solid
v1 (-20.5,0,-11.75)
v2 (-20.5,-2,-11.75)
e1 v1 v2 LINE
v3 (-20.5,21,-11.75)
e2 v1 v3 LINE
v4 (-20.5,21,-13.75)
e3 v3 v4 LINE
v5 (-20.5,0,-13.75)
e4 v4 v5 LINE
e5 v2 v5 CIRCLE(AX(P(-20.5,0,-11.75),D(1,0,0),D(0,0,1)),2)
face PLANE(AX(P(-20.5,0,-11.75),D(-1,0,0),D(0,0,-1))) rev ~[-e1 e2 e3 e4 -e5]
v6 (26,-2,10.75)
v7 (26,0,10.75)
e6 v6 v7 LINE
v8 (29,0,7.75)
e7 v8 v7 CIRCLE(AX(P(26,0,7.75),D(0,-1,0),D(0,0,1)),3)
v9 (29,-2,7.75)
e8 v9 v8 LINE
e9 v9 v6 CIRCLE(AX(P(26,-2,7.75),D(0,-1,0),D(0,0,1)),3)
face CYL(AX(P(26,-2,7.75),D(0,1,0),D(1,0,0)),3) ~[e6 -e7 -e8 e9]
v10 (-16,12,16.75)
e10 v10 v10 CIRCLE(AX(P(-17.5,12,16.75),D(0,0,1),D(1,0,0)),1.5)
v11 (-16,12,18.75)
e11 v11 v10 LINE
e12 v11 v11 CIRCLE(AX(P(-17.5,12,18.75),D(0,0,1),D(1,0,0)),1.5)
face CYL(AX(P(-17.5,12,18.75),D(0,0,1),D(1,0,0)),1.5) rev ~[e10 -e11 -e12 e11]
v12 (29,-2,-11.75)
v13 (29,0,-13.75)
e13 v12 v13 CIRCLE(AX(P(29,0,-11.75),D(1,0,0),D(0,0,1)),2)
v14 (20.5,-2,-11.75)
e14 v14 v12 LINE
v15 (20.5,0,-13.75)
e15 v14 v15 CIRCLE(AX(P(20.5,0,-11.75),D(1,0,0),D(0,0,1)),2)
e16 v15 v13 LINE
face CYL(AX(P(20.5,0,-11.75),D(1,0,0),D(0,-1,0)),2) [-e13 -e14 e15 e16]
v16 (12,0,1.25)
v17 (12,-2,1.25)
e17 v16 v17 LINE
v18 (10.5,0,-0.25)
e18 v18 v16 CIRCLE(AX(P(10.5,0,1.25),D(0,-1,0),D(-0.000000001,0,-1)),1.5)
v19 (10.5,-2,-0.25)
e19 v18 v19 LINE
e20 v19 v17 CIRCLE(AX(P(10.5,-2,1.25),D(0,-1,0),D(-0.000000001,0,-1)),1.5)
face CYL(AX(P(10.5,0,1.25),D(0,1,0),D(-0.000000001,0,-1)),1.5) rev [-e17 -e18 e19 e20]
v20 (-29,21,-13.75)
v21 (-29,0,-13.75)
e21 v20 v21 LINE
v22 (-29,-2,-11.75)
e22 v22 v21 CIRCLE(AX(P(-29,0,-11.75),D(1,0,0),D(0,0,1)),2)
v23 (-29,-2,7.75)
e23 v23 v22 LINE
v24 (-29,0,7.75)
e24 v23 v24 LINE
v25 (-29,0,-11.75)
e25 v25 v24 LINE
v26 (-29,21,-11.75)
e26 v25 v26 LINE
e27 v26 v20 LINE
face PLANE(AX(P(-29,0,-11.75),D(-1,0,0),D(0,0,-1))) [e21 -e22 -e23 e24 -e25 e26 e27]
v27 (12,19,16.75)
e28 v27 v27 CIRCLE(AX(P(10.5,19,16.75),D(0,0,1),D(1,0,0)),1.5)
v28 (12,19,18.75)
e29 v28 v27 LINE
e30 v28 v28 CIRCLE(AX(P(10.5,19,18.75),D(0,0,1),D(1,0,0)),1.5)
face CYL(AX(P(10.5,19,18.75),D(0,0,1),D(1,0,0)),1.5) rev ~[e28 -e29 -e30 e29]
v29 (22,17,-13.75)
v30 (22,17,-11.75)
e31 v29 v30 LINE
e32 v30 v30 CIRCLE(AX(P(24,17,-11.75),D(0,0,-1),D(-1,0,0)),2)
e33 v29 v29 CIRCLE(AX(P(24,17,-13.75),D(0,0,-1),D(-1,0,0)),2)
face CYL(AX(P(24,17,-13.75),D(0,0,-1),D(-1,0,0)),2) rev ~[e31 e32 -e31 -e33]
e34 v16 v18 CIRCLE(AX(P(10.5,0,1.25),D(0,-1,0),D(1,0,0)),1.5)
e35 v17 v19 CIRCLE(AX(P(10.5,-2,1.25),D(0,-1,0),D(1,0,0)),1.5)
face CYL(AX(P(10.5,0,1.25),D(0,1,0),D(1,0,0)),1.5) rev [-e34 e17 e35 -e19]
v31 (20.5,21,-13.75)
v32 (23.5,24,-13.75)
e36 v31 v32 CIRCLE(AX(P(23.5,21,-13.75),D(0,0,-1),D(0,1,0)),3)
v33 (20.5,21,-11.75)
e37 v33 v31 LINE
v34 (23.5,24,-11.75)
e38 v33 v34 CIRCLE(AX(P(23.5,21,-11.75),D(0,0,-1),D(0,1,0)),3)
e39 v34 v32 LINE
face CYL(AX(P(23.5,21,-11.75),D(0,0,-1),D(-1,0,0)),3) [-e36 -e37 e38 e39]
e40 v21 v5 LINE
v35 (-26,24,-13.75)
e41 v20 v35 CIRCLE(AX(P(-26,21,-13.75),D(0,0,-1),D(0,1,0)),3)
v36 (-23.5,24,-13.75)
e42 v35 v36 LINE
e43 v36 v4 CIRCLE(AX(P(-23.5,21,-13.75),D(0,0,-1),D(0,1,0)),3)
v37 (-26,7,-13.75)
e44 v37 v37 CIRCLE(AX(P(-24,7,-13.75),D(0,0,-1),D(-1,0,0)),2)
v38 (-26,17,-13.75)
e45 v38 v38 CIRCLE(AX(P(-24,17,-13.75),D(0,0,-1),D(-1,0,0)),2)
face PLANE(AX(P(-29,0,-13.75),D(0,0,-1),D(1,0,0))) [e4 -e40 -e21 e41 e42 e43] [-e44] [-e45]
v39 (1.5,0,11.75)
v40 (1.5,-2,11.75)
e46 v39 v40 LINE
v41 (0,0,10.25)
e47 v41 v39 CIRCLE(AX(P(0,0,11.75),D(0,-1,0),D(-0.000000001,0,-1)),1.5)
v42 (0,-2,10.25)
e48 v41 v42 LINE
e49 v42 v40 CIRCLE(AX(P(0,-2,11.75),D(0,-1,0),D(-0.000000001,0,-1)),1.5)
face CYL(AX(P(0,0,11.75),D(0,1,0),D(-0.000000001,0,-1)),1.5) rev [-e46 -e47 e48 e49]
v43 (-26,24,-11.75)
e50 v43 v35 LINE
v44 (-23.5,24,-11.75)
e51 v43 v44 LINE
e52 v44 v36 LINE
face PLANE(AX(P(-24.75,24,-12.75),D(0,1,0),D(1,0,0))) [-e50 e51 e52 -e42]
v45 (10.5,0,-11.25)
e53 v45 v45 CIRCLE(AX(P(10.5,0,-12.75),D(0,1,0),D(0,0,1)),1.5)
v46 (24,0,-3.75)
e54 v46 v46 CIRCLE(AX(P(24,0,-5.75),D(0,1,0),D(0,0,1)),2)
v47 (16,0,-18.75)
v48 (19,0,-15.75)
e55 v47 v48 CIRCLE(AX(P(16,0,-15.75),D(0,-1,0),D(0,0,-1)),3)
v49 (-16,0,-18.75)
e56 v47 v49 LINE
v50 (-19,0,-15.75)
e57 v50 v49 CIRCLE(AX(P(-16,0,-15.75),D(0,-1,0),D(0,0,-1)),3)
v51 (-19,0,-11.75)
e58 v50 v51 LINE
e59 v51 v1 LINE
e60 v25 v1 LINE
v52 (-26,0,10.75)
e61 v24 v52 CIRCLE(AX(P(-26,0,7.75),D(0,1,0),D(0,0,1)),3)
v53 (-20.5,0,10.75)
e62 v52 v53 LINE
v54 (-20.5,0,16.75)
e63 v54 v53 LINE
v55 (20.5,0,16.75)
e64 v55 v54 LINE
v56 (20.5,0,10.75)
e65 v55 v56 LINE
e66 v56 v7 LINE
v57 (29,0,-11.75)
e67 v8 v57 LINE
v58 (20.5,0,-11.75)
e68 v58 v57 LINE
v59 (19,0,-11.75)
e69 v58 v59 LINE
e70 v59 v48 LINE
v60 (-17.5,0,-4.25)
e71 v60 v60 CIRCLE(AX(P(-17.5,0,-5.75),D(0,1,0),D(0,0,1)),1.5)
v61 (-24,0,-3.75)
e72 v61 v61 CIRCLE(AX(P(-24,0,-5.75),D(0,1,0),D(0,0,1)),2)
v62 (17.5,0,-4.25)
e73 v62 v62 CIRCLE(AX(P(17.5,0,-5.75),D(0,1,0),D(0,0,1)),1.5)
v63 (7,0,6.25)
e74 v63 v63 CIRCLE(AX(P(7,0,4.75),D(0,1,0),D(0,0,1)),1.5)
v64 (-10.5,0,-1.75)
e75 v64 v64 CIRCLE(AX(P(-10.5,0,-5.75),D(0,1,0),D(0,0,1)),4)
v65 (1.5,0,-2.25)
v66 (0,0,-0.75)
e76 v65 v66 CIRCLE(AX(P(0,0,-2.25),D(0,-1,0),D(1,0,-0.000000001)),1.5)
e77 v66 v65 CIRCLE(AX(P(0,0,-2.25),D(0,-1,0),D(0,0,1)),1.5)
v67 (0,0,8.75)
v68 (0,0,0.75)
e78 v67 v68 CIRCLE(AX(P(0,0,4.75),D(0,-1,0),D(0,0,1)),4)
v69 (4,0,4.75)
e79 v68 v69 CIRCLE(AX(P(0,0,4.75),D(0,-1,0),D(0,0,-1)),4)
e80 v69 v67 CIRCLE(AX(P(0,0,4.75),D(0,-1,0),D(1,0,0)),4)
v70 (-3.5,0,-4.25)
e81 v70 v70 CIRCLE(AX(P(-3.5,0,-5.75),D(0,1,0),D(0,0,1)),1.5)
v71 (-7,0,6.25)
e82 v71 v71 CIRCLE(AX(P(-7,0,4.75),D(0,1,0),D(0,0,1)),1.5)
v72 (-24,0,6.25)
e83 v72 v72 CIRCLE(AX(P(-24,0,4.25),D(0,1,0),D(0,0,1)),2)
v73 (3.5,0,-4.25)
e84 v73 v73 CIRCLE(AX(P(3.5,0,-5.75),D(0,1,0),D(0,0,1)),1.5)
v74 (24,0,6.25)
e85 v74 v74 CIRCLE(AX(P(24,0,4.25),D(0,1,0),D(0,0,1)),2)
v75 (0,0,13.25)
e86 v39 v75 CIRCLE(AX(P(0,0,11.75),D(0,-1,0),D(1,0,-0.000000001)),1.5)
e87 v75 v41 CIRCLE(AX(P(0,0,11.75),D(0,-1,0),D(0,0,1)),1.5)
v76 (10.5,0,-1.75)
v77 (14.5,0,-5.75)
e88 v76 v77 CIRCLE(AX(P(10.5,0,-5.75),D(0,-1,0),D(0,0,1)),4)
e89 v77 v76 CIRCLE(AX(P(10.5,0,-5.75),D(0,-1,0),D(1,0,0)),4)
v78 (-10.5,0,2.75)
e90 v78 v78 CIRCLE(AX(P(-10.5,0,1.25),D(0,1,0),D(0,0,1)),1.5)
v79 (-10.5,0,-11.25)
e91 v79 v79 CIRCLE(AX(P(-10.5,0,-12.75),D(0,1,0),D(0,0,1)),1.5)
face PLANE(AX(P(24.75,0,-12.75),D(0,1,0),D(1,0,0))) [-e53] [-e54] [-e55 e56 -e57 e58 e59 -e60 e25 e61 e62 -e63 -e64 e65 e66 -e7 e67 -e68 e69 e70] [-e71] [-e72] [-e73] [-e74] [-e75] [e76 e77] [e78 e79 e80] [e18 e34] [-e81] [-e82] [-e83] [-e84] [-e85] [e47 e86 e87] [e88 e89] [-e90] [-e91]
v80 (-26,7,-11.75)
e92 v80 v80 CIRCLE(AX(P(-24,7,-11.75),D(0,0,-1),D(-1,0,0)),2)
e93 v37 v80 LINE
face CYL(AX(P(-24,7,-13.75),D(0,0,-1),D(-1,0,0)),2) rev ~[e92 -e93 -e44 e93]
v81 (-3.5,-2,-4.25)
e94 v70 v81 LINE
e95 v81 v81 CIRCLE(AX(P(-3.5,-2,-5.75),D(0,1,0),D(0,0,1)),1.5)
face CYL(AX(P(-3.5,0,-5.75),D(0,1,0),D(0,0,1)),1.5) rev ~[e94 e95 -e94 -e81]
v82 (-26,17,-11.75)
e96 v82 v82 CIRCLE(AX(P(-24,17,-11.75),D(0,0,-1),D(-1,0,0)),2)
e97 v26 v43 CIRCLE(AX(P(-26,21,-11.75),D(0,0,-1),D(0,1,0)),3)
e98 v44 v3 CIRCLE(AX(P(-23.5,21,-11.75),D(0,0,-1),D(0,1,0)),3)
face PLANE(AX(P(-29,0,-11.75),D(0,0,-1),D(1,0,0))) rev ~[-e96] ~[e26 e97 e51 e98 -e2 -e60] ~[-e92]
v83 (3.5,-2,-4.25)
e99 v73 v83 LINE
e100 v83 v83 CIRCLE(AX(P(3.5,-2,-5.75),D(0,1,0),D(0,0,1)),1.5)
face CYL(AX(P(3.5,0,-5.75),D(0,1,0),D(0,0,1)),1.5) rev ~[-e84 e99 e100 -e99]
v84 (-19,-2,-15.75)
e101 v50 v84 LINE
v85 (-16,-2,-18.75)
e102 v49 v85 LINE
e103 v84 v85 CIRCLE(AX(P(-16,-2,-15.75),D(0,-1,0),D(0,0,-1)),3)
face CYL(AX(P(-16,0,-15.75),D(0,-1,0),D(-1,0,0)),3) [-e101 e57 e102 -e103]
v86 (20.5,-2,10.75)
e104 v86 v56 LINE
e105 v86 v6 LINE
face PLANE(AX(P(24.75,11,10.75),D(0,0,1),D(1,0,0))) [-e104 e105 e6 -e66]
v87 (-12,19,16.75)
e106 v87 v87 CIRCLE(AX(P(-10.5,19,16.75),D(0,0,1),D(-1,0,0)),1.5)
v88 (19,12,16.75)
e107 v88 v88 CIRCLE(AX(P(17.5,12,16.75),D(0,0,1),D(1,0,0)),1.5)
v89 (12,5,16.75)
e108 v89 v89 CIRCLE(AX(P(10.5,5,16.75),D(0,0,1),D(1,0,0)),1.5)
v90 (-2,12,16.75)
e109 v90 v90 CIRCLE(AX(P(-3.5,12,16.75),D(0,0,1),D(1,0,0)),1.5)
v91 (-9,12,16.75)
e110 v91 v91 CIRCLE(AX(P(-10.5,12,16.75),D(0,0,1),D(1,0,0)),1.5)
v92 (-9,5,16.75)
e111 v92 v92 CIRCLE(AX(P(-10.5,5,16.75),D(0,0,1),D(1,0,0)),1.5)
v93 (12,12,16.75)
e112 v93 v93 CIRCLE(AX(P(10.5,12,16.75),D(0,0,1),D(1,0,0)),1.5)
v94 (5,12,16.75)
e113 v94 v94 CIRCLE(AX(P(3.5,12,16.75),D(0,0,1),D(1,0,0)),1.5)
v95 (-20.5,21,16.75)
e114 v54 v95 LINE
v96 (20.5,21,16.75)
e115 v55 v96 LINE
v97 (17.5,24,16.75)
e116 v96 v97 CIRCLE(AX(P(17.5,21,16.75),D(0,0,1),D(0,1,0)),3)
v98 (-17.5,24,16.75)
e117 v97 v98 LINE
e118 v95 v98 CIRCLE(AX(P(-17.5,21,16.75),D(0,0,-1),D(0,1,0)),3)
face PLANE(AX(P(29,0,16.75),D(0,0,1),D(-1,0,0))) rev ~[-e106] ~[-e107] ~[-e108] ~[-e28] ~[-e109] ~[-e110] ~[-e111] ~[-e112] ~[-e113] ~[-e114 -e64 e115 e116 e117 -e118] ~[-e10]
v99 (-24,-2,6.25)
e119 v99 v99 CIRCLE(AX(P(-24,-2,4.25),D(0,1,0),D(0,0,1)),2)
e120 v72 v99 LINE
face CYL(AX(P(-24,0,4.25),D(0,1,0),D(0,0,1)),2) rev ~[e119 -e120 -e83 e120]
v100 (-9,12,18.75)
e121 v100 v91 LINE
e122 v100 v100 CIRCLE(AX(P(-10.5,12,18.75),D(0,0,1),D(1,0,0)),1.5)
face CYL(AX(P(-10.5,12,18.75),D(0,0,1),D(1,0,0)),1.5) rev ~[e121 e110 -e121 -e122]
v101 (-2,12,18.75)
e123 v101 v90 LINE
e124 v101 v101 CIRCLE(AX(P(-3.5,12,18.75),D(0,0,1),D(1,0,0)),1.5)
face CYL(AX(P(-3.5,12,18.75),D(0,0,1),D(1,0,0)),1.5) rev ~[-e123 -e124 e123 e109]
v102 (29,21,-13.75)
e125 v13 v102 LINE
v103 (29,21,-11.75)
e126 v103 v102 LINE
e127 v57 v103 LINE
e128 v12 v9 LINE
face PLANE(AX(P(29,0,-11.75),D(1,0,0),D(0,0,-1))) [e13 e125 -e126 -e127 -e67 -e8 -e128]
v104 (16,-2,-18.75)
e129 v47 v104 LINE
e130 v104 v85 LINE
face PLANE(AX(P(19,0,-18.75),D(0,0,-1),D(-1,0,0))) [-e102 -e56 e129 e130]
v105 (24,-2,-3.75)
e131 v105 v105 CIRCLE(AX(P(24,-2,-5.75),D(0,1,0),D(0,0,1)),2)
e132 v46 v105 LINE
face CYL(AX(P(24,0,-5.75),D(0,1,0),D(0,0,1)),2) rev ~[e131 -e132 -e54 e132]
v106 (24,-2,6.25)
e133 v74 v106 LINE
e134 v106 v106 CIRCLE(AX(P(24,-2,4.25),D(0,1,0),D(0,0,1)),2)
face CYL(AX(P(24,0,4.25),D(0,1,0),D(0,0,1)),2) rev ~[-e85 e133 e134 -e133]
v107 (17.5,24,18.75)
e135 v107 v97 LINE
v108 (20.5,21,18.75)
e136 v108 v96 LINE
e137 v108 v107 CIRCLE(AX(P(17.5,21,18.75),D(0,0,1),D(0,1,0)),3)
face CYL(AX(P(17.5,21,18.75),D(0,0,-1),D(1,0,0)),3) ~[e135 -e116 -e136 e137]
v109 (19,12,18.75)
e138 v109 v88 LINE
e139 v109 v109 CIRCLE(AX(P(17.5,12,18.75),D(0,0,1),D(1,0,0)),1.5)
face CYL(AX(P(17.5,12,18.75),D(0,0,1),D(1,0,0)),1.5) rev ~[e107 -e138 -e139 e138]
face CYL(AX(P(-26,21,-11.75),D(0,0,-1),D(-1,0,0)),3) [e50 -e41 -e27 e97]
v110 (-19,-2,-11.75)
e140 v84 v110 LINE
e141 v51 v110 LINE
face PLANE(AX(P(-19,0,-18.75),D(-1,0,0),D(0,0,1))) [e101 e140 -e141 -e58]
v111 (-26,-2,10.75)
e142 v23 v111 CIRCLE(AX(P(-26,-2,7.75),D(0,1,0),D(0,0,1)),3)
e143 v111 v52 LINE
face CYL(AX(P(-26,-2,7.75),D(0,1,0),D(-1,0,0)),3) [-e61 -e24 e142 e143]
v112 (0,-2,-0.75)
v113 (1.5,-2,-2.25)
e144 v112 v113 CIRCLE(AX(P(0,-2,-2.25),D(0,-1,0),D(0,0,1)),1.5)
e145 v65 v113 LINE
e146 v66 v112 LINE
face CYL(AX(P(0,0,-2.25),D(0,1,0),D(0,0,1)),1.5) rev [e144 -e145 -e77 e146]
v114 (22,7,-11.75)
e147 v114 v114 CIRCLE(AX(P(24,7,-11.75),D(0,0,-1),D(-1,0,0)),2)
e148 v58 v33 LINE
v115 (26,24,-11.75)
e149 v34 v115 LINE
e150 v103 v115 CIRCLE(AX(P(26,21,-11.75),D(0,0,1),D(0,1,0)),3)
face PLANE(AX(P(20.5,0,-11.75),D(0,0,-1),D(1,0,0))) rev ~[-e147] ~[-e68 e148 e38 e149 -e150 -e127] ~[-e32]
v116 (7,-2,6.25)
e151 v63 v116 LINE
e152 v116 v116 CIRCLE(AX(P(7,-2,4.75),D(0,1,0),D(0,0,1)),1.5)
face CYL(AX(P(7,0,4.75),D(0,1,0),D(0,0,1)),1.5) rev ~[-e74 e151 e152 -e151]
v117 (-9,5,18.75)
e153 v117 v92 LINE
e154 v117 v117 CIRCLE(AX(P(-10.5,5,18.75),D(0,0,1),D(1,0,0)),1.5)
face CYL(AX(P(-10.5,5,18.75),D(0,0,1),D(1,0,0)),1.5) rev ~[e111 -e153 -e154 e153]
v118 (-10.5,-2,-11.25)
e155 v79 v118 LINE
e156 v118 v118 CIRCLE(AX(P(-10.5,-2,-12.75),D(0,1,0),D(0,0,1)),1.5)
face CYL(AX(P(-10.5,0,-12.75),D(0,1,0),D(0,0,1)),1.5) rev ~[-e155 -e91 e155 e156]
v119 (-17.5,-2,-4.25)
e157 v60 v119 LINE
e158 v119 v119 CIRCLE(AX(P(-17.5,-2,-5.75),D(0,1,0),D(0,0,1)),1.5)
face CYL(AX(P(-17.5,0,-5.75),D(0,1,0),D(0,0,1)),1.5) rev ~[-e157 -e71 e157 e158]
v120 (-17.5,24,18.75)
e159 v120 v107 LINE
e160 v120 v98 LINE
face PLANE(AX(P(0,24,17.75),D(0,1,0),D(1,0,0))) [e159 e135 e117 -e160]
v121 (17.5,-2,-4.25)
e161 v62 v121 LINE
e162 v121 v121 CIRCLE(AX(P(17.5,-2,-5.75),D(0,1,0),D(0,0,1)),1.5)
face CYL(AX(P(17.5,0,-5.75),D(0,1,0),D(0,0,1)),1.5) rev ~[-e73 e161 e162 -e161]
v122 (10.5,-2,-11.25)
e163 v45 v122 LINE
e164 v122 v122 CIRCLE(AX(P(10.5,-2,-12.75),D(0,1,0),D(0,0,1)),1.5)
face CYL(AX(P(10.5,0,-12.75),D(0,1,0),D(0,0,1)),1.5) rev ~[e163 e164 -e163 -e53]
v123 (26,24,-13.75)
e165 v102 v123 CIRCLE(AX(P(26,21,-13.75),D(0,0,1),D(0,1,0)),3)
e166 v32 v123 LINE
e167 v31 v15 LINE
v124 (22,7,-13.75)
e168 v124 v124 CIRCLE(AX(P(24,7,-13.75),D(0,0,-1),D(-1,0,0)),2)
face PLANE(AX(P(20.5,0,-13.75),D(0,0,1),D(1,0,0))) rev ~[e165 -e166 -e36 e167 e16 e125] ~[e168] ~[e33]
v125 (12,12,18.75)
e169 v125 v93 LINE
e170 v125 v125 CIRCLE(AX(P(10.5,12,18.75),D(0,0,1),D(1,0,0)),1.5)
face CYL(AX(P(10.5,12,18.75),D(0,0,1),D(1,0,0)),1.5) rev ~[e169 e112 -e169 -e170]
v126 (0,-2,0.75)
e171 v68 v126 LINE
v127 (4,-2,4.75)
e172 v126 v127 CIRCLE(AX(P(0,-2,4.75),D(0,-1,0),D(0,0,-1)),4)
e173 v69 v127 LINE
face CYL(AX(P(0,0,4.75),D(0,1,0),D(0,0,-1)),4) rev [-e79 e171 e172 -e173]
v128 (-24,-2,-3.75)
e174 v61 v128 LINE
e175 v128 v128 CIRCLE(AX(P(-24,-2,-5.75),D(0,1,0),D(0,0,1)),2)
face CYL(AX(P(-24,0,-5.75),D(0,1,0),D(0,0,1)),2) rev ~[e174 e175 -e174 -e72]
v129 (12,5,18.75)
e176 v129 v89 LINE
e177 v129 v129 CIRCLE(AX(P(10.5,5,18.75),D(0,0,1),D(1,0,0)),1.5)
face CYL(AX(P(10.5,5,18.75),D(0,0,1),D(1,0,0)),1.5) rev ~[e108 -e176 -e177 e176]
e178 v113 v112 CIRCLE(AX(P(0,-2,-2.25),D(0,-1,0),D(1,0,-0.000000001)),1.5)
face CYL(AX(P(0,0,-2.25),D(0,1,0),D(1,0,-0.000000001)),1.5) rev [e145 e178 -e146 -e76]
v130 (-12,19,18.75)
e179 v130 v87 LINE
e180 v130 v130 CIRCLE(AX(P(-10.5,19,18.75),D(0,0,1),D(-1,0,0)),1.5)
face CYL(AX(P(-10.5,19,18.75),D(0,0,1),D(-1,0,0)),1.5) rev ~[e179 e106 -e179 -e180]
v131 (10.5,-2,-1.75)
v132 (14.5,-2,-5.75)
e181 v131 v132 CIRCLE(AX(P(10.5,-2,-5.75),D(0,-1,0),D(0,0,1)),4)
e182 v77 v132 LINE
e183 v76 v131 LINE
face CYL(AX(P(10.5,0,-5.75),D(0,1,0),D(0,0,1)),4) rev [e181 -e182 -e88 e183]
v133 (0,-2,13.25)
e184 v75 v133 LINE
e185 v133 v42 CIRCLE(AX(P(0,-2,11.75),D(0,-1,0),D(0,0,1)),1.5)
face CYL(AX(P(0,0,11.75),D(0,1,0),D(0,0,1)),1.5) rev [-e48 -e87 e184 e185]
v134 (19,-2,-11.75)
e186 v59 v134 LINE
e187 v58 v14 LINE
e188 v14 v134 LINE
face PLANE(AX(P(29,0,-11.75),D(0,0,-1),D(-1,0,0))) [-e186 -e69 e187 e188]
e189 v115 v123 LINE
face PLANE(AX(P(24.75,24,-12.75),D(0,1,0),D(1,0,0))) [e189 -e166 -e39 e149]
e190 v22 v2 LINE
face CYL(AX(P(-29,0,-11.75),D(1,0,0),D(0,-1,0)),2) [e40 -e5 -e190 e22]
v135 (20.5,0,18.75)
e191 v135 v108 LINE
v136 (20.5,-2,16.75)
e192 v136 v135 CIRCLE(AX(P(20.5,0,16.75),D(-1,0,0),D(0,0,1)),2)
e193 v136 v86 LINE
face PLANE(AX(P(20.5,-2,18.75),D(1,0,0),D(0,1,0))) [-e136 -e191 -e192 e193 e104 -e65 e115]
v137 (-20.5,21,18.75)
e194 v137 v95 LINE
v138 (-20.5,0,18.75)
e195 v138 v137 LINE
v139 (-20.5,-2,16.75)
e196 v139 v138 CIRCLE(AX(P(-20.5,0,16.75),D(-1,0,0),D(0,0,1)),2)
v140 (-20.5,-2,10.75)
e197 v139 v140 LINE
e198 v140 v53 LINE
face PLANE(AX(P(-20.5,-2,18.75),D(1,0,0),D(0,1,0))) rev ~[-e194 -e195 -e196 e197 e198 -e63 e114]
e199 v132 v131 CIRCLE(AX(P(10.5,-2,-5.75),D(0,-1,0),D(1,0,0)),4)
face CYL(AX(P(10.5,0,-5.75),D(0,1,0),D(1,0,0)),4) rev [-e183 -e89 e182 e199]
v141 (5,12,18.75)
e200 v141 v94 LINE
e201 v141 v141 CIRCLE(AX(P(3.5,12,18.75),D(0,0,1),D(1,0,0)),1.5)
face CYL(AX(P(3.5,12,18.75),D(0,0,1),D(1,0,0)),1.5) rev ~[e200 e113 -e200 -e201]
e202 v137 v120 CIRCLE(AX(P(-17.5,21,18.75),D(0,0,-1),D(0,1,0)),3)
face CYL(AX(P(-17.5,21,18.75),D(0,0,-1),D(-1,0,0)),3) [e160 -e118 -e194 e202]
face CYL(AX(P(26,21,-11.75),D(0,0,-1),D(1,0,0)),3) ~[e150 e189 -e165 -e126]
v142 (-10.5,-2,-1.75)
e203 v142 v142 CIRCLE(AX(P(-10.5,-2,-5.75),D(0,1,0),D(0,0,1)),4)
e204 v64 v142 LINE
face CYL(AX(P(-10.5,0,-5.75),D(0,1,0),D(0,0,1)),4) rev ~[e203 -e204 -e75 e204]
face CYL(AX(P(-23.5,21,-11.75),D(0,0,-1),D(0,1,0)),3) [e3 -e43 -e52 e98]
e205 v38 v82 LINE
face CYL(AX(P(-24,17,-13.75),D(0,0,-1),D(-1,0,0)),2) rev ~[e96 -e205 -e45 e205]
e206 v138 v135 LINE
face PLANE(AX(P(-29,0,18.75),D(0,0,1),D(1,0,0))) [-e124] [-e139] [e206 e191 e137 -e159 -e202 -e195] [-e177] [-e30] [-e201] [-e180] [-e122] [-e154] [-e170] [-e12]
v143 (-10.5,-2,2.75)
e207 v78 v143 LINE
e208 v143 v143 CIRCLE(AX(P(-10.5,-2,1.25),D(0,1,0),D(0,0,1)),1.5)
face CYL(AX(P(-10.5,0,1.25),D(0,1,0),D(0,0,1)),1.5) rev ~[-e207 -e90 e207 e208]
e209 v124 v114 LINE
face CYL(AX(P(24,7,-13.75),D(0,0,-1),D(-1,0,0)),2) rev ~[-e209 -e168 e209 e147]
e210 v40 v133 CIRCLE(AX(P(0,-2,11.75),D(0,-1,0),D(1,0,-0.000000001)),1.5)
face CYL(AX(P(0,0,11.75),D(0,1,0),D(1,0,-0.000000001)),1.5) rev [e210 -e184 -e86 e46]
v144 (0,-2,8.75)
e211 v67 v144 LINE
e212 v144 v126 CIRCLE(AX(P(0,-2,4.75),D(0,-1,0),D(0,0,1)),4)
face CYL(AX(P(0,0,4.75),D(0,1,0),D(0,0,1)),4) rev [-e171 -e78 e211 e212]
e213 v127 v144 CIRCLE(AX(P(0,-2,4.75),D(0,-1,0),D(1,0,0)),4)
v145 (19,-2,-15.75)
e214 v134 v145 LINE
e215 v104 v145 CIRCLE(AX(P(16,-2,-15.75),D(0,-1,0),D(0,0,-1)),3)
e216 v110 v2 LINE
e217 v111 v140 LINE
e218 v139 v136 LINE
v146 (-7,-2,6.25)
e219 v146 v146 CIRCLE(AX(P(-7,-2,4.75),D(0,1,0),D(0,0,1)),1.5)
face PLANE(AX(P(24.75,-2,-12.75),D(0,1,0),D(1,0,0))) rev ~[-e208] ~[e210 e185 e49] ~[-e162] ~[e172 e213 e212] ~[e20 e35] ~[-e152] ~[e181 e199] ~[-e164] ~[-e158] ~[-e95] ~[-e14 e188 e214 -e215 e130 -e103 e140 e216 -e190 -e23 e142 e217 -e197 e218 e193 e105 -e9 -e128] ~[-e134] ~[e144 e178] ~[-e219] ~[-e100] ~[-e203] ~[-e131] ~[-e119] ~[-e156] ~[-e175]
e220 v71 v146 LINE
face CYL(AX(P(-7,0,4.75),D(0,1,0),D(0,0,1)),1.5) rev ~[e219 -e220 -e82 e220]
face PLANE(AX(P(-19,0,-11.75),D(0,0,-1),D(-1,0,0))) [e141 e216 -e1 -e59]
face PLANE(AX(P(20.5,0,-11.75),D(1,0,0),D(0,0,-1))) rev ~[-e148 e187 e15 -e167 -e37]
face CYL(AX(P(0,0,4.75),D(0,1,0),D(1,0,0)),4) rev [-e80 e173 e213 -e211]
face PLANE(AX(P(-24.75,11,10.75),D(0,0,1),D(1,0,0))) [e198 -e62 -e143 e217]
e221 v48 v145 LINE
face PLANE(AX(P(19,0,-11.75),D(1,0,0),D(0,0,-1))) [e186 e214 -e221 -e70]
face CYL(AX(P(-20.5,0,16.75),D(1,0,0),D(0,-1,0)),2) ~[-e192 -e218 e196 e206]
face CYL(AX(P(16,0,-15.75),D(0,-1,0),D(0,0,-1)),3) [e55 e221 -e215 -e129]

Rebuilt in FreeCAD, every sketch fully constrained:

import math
import FreeCAD as App
import Part
import Sketcher


def edges_at(feature, points):
    """Names of the edges that pass closest to the given points."""
    edges = feature.Shape.Edges
    near = lambda p: min(range(len(edges)), key=lambda i: edges[i].distToShape(Part.Vertex(*p))[0])
    return sorted({f"Edge{near(p) + 1}" for p in points})

doc = App.newDocument("Part")
body = doc.addObject("PartDesign::Body", "Body")

# Sketch on XZ plane
sketch1 = body.newObject("Sketcher::SketchObject", "Sketch")
sketch1.AttachmentSupport = (doc.getObject("XZ_Plane"), [""])
sketch1.MapMode = "FlatFace"
sketch1.addGeometry([
    Part.LineSegment(App.Vector(-29, 18.8, 0), App.Vector(29, 18.8, 0)),  # 0
    Part.LineSegment(App.Vector(29, 18.8, 0), App.Vector(29, -13.8, 0)),  # 1
    Part.LineSegment(App.Vector(29, -13.8, 0), App.Vector(20.5, -13.8, 0)),  # 2
    Part.LineSegment(App.Vector(20.5, -13.8, 0), App.Vector(20.5, -11.8, 0)),  # 3
    Part.LineSegment(App.Vector(20.5, -11.8, 0), App.Vector(19, -11.8, 0)),  # 4
    Part.LineSegment(App.Vector(19, -11.8, 0), App.Vector(19, -18.8, 0)),  # 5
    Part.LineSegment(App.Vector(19, -18.8, 0), App.Vector(-19, -18.8, 0)),  # 6
    Part.LineSegment(App.Vector(-19, -18.8, 0), App.Vector(-19, -11.8, 0)),  # 7
    Part.LineSegment(App.Vector(-19, -11.8, 0), App.Vector(-20.5, -11.8, 0)),  # 8
    Part.LineSegment(App.Vector(-20.5, -11.8, 0), App.Vector(-20.5, -13.8, 0)),  # 9
    Part.LineSegment(App.Vector(-20.5, -13.8, 0), App.Vector(-29, -13.8, 0)),  # 10
    Part.LineSegment(App.Vector(-29, -13.8, 0), App.Vector(-29, 18.8, 0)),  # 11
    Part.Circle(App.Vector(10.5, -12.8, 0), App.Vector(0, 0, 1), 1.5),  # 12
    Part.Circle(App.Vector(-24, 4.2, 0), App.Vector(0, 0, 1), 2),  # 13
    Part.Circle(App.Vector(-7, 4.8, 0), App.Vector(0, 0, 1), 1.5),  # 14
    Part.Circle(App.Vector(-10.5, 1.2, 0), App.Vector(0, 0, 1), 1.5),  # 15
    Part.ArcOfCircle(Part.Circle(App.Vector(0, 11.7, 0), App.Vector(0, 0, 1), 1.5), math.radians(-90), math.radians(0)),  # 16
    Part.ArcOfCircle(Part.Circle(App.Vector(0, 11.8, 0), App.Vector(0, 0, 1), 1.5), math.radians(0), math.radians(90)),  # 17
    Part.ArcOfCircle(Part.Circle(App.Vector(0, 11.8, 0), App.Vector(0, 0, 1), 1.5), math.radians(90), math.radians(270)),  # 18
    Part.ArcOfCircle(Part.Circle(App.Vector(0, 4.7, 0), App.Vector(0, 0, 1), 4), math.radians(-90), math.radians(0)),  # 19
    Part.ArcOfCircle(Part.Circle(App.Vector(0, 4.8, 0), App.Vector(0, 0, 1), 4), math.radians(0), math.radians(90)),  # 20
    Part.ArcOfCircle(Part.Circle(App.Vector(0, 4.8, 0), App.Vector(0, 0, 1), 4), math.radians(90), math.radians(270)),  # 21
    Part.Circle(App.Vector(7, 4.8, 0), App.Vector(0, 0, 1), 1.5),  # 22
    Part.ArcOfCircle(Part.Circle(App.Vector(10.5, 1.2, 0), App.Vector(0, 0, 1), 1.5), math.radians(-90), math.radians(0)),  # 23
    Part.ArcOfCircle(Part.Circle(App.Vector(10.5, 1.2, 0), App.Vector(0, 0, 1), 1.5), math.radians(0), math.radians(270)),  # 24
    Part.Circle(App.Vector(24, 4.2, 0), App.Vector(0, 0, 1), 2),  # 25
    Part.Circle(App.Vector(-24, -5.8, 0), App.Vector(0, 0, 1), 2),  # 26
    Part.Circle(App.Vector(-17.5, -5.8, 0), App.Vector(0, 0, 1), 1.5),  # 27
    Part.ArcOfCircle(Part.Circle(App.Vector(0, -2.2, 0), App.Vector(0, 0, 1), 1.5), math.radians(90), math.radians(360)),  # 28
    Part.ArcOfCircle(Part.Circle(App.Vector(0, -2.2, 0), App.Vector(0, 0, 1), 1.5), math.radians(0), math.radians(90)),  # 29
    Part.Circle(App.Vector(-10.5, -5.8, 0), App.Vector(0, 0, 1), 4),  # 30
    Part.Circle(App.Vector(-3.5, -5.8, 0), App.Vector(0, 0, 1), 1.5),  # 31
    Part.Circle(App.Vector(-10.5, -12.8, 0), App.Vector(0, 0, 1), 1.5),  # 32
    Part.Circle(App.Vector(3.5, -5.8, 0), App.Vector(0, 0, 1), 1.5),  # 33
    Part.ArcOfCircle(Part.Circle(App.Vector(10.5, -5.8, 0), App.Vector(0, 0, 1), 4), math.radians(90), math.radians(360)),  # 34
    Part.ArcOfCircle(Part.Circle(App.Vector(10.5, -5.7, 0), App.Vector(0, 0, 1), 4), math.radians(0), math.radians(90)),  # 35
    Part.Circle(App.Vector(17.5, -5.8, 0), App.Vector(0, 0, 1), 1.5),  # 36
    Part.Circle(App.Vector(24, -5.8, 0), App.Vector(0, 0, 1), 2),  # 37
], False)
sketch1.addConstraint([
    Sketcher.Constraint("Coincident", 0, 2, 1, 1),
    Sketcher.Constraint("Coincident", 1, 2, 2, 1),
    Sketcher.Constraint("Coincident", 2, 2, 3, 1),
    Sketcher.Constraint("Coincident", 3, 2, 4, 1),
    Sketcher.Constraint("Coincident", 4, 2, 5, 1),
    Sketcher.Constraint("Coincident", 5, 2, 6, 1),
    Sketcher.Constraint("Coincident", 6, 2, 7, 1),
    Sketcher.Constraint("Coincident", 7, 2, 8, 1),
    Sketcher.Constraint("Coincident", 8, 2, 9, 1),
    Sketcher.Constraint("Coincident", 9, 2, 10, 1),
    Sketcher.Constraint("Coincident", 10, 2, 11, 1),
    Sketcher.Constraint("Coincident", 11, 2, 0, 1),
    Sketcher.Constraint("Tangent", 16, 2, 17, 1),
    Sketcher.Constraint("Tangent", 17, 2, 18, 1),
    Sketcher.Constraint("Tangent", 18, 2, 16, 1),
    Sketcher.Constraint("Tangent", 19, 2, 20, 1),
    Sketcher.Constraint("Tangent", 20, 2, 21, 1),
    Sketcher.Constraint("Tangent", 21, 2, 19, 1),
    Sketcher.Constraint("Tangent", 23, 1, 24, 2),
    Sketcher.Constraint("Coincident", 24, 1, 23, 2),
    Sketcher.Constraint("Tangent", 28, 1, 29, 2),
    Sketcher.Constraint("Coincident", 29, 1, 28, 2),
    Sketcher.Constraint("Tangent", 34, 1, 35, 2),
    Sketcher.Constraint("Coincident", 35, 1, 34, 2),
    Sketcher.Constraint("Horizontal", 0),
    Sketcher.Constraint("Vertical", 1),
    Sketcher.Constraint("Horizontal", 2),
    Sketcher.Constraint("Vertical", 3),
    Sketcher.Constraint("Horizontal", 4),
    Sketcher.Constraint("Vertical", 5),
    Sketcher.Constraint("Horizontal", 6),
    Sketcher.Constraint("Vertical", 7),
    Sketcher.Constraint("Horizontal", 8),
    Sketcher.Constraint("Vertical", 9),
    Sketcher.Constraint("Horizontal", 10),
    Sketcher.Constraint("Vertical", 11),
    Sketcher.Constraint("Equal", 12, 14),
    Sketcher.Constraint("Equal", 14, 15),
    Sketcher.Constraint("Equal", 15, 16),
    Sketcher.Constraint("Equal", 18, 22),
    Sketcher.Constraint("Equal", 22, 23),
    Sketcher.Constraint("Equal", 13, 25),
    Sketcher.Constraint("Equal", 25, 26),
    Sketcher.Constraint("Equal", 24, 27),
    Sketcher.Constraint("Equal", 27, 28),
    Sketcher.Constraint("Equal", 21, 30),
    Sketcher.Constraint("Equal", 29, 31),
    Sketcher.Constraint("Equal", 31, 32),
    Sketcher.Constraint("Equal", 32, 33),
    Sketcher.Constraint("Equal", 30, 34),
    Sketcher.Constraint("Equal", 33, 36),
    Sketcher.Constraint("Equal", 26, 37),
    Sketcher.Constraint("Symmetric", 21, 2, 28, 1, -1, 1),
    Sketcher.Constraint("Symmetric", 14, 3, 22, 3, -2),
    Sketcher.Constraint("Symmetric", 15, 3, 23, 3, -2),
    Sketcher.Constraint("Symmetric", 13, 3, 25, 3, -2),
    Sketcher.Constraint("Symmetric", 12, 3, 32, 3, -2),
    Sketcher.Constraint("Symmetric", 31, 3, 33, 3, -2),
    Sketcher.Constraint("Symmetric", 30, 3, 34, 3, -2),
    Sketcher.Constraint("Symmetric", 27, 3, 36, 3, -2),
    Sketcher.Constraint("Symmetric", 26, 3, 37, 3, -2),
    Sketcher.Constraint("Symmetric", 4, 2, 7, 2, -2),
    Sketcher.Constraint("Symmetric", 2, 2, 9, 2, -2),
    Sketcher.Constraint("PointOnObject", 16, 3, -2),
    Sketcher.Constraint("PointOnObject", 19, 3, -2),
    Sketcher.Constraint("PointOnObject", 28, 3, -2),
    Sketcher.Constraint("PointOnObject", 17, 2, -2),
    Sketcher.Constraint("PointOnObject", 18, 2, -2),
    Sketcher.Constraint("PointOnObject", 20, 2, -2),
    Sketcher.Constraint("PointOnObject", 21, 2, -2),
    Sketcher.Constraint("Horizontal", 14, 3, 19, 3),
    Sketcher.Constraint("Horizontal", 26, 3, 27, 3),
    Sketcher.Constraint("Horizontal", 27, 3, 30, 3),
    Sketcher.Constraint("Horizontal", 30, 3, 31, 3),
    Sketcher.Constraint("Horizontal", 18, 3, 16, 2),
    Sketcher.Constraint("Horizontal", 22, 3, 19, 2),
    Sketcher.Constraint("Horizontal", 23, 3, 24, 1),
    Sketcher.Constraint("Horizontal", 28, 3, 29, 1),
    Sketcher.Constraint("Horizontal", 37, 3, 35, 1),
    Sketcher.Constraint("Vertical", 12, 3, 23, 3),
    Sketcher.Constraint("Vertical", 13, 3, 26, 3),
    Sketcher.Constraint("Vertical", 15, 3, 30, 3),
    Sketcher.Constraint("Vertical", 35, 3, 23, 1),
    Sketcher.Constraint("Vertical", 23, 1, 34, 1),
    Sketcher.Constraint("Equal", 2, 10),
    Sketcher.Constraint("Diameter", 12, 3.0),
    Sketcher.Constraint("Diameter", 13, 4.0),
    Sketcher.Constraint("Diameter", 30, 8.0),
    Sketcher.Constraint("DistanceX", 0, 1, 0, 2, 58.0),
    Sketcher.Constraint("DistanceX", 6, 2, 6, 1, 38.0),
    Sketcher.Constraint("DistanceY", 3, 1, 3, 2, 2.0),
    Sketcher.Constraint("DistanceY", 5, 2, 5, 1, 7.0),
    Sketcher.Constraint("DistanceX", 2, 2, 2, 1, 8.5),
    Sketcher.Constraint("DistanceY", 1, 2, 1, 1, 32.5),
    Sketcher.Constraint("DistanceX", 13, 3, -1, 1, 24.0),
    Sketcher.Constraint("DistanceX", 14, 3, -1, 1, 7.0),
    Sketcher.Constraint("DistanceX", -1, 1, 24, 1, 12.0),
    Sketcher.Constraint("DistanceY", 12, 3, 13, 3, 17.0),
    Sketcher.Constraint("DistanceY", 15, 3, 13, 3, 3.0),
    Sketcher.Constraint("DistanceY", 14, 3, 16, 3, 7.0),
    Sketcher.Constraint("DistanceY", 26, 3, 13, 3, 10.0),
    Sketcher.Constraint("DistanceX", 27, 3, 15, 3, 7.0),
    Sketcher.Constraint("DistanceY", 28, 3, 19, 3, 7.0),
    Sketcher.Constraint("DistanceX", 30, 3, 31, 3, 7.0),
    Sketcher.Constraint("DistanceY", 22, 3, 0, 2, 14.0),
    Sketcher.Constraint("DistanceY", 1, 2, 37, 3, 8.0),
])
pad1 = body.newObject("PartDesign::Pad", "Pad")
pad1.Profile = sketch1
pad1.Length = 2

# Sketch on XZ plane
sketch2 = body.newObject("Sketcher::SketchObject", "Sketch001")
sketch2.AttachmentSupport = (doc.getObject("XZ_Plane"), [""])
sketch2.MapMode = "FlatFace"
sketch2.addGeometry([
    Part.LineSegment(App.Vector(-29, -13.8, 0), App.Vector(-29, -11.8, 0)),  # 0
    Part.LineSegment(App.Vector(-29, -11.8, 0), App.Vector(-20.5, -11.8, 0)),  # 1
    Part.LineSegment(App.Vector(-20.5, -11.8, 0), App.Vector(-20.5, -13.8, 0)),  # 2
    Part.LineSegment(App.Vector(-20.5, -13.8, 0), App.Vector(-29, -13.8, 0)),  # 3
    Part.LineSegment(App.Vector(20.5, -13.8, 0), App.Vector(20.5, -11.8, 0)),  # 4
    Part.LineSegment(App.Vector(20.5, -11.8, 0), App.Vector(29, -11.8, 0)),  # 5
    Part.LineSegment(App.Vector(29, -11.8, 0), App.Vector(29, -13.8, 0)),  # 6
    Part.LineSegment(App.Vector(29, -13.8, 0), App.Vector(20.5, -13.8, 0)),  # 7
    Part.LineSegment(App.Vector(-29, 16.8, 0), App.Vector(-29, 18.8, 0)),  # 8
    Part.LineSegment(App.Vector(-29, 18.8, 0), App.Vector(29, 18.8, 0)),  # 9
    Part.LineSegment(App.Vector(29, 18.8, 0), App.Vector(29, 16.8, 0)),  # 10
    Part.LineSegment(App.Vector(29, 16.8, 0), App.Vector(-29, 16.8, 0)),  # 11
], False)
sketch2.addConstraint([
    Sketcher.Constraint("Coincident", 0, 2, 1, 1),
    Sketcher.Constraint("Coincident", 1, 2, 2, 1),
    Sketcher.Constraint("Coincident", 2, 2, 3, 1),
    Sketcher.Constraint("Coincident", 3, 2, 0, 1),
    Sketcher.Constraint("Coincident", 4, 2, 5, 1),
    Sketcher.Constraint("Coincident", 5, 2, 6, 1),
    Sketcher.Constraint("Coincident", 6, 2, 7, 1),
    Sketcher.Constraint("Coincident", 7, 2, 4, 1),
    Sketcher.Constraint("Coincident", 8, 2, 9, 1),
    Sketcher.Constraint("Coincident", 9, 2, 10, 1),
    Sketcher.Constraint("Coincident", 10, 2, 11, 1),
    Sketcher.Constraint("Coincident", 11, 2, 8, 1),
    Sketcher.Constraint("Vertical", 0),
    Sketcher.Constraint("Horizontal", 1),
    Sketcher.Constraint("Vertical", 2),
    Sketcher.Constraint("Horizontal", 3),
    Sketcher.Constraint("Vertical", 4),
    Sketcher.Constraint("Horizontal", 5),
    Sketcher.Constraint("Vertical", 6),
    Sketcher.Constraint("Horizontal", 7),
    Sketcher.Constraint("Vertical", 8),
    Sketcher.Constraint("Horizontal", 9),
    Sketcher.Constraint("Vertical", 10),
    Sketcher.Constraint("Horizontal", 11),
    Sketcher.Constraint("Symmetric", 1, 2, 4, 2, -2),
    Sketcher.Constraint("Symmetric", 3, 2, 6, 2, -2),
    Sketcher.Constraint("Vertical", 3, 2, 8, 2),
    Sketcher.Constraint("Vertical", 6, 2, 9, 2),
    Sketcher.Constraint("Equal", 6, 8),
    Sketcher.Constraint("DistanceX", 9, 1, 9, 2, 58.0),
    Sketcher.Constraint("DistanceY", 0, 1, 0, 2, 2.0),
    Sketcher.Constraint("DistanceX", 1, 1, 1, 2, 8.5),
    Sketcher.Constraint("DistanceY", 0, 2, 8, 2, 30.5),
    Sketcher.Constraint("DistanceY", 0, 2, -1, 1, 11.75),
])
pad2 = body.newObject("PartDesign::Pad", "Pad001")
pad2.Profile = sketch2
pad2.Length = 24
pad2.Reversed = True

# Sketch on XY plane
sketch3 = body.newObject("Sketcher::SketchObject", "Sketch002")
sketch3.AttachmentSupport = (doc.getObject("XY_Plane"), [""])
sketch3.MapMode = "FlatFace"
sketch3.AttachmentOffset = App.Placement(App.Vector(0, 0, -13.75), App.Rotation())
sketch3.addGeometry([
    Part.Circle(App.Vector(24, 17, 0), App.Vector(0, 0, 1), 2),
    Part.Circle(App.Vector(-24, 17, 0), App.Vector(0, 0, 1), 2),
    Part.Circle(App.Vector(-24, 7, 0), App.Vector(0, 0, 1), 2),
    Part.Circle(App.Vector(24, 7, 0), App.Vector(0, 0, 1), 2),
], False)
sketch3.addConstraint([
    Sketcher.Constraint("Equal", 0, 1),
    Sketcher.Constraint("Equal", 1, 2),
    Sketcher.Constraint("Equal", 2, 3),
    Sketcher.Constraint("Symmetric", 0, 3, 1, 3, -2),
    Sketcher.Constraint("Symmetric", 2, 3, 3, 3, -2),
    Sketcher.Constraint("Vertical", 1, 3, 2, 3),
    Sketcher.Constraint("Diameter", 0, 4.0),
    Sketcher.Constraint("DistanceX", -1, 1, 0, 3, 24.0),
    Sketcher.Constraint("DistanceY", -1, 1, 0, 3, 17.0),
    Sketcher.Constraint("DistanceY", -1, 1, 2, 3, 7.0),
])
pocket1 = body.newObject("PartDesign::Pocket", "Pocket")
pocket1.Profile = sketch3
pocket1.Length = 12
pocket1.Reversed = True
doc.recompute()

fillet = body.newObject("PartDesign::Fillet", "Fillet")
fillet.Base = (pocket1, edges_at(pocket1, [
    (20.5, 24, -12.75),
    (29, 24, -12.75),
    (-29, 24, -12.75),
    (-20.5, 24, -12.75),
]))
fillet.Radius = 3

# Sketch on XY plane
sketch4 = body.newObject("Sketcher::SketchObject", "Sketch003")
sketch4.AttachmentSupport = (doc.getObject("XY_Plane"), [""])
sketch4.MapMode = "FlatFace"
sketch4.AttachmentOffset = App.Placement(App.Vector(0, 0, 18.75), App.Rotation())
sketch4.addGeometry([
    Part.Circle(App.Vector(10.5, 12, 0), App.Vector(0, 0, 1), 1.5),  # 0
    Part.Circle(App.Vector(-10.5, 12, 0), App.Vector(0, 0, 1), 1.5),  # 1
    Part.Circle(App.Vector(-17.5, 12, 0), App.Vector(0, 0, 1), 1.5),  # 2
    Part.Circle(App.Vector(-10.5, 19, 0), App.Vector(0, 0, 1), 1.5),  # 3
    Part.Circle(App.Vector(-3.5, 12, 0), App.Vector(0, 0, 1), 1.5),  # 4
    Part.Circle(App.Vector(-10.5, 5, 0), App.Vector(0, 0, 1), 1.5),  # 5
    Part.Circle(App.Vector(17.5, 12, 0), App.Vector(0, 0, 1), 1.5),  # 6
    Part.Circle(App.Vector(10.5, 5, 0), App.Vector(0, 0, 1), 1.5),  # 7
    Part.Circle(App.Vector(3.5, 12, 0), App.Vector(0, 0, 1), 1.5),  # 8
    Part.Circle(App.Vector(10.5, 19, 0), App.Vector(0, 0, 1), 1.5),  # 9
], False)
sketch4.addConstraint([
    Sketcher.Constraint("Equal", 0, 1),
    Sketcher.Constraint("Equal", 1, 2),
    Sketcher.Constraint("Equal", 2, 3),
    Sketcher.Constraint("Equal", 3, 4),
    Sketcher.Constraint("Equal", 4, 5),
    Sketcher.Constraint("Equal", 5, 6),
    Sketcher.Constraint("Equal", 6, 7),
    Sketcher.Constraint("Equal", 7, 8),
    Sketcher.Constraint("Equal", 8, 9),
    Sketcher.Constraint("Symmetric", 0, 3, 1, 3, -2),
    Sketcher.Constraint("Symmetric", 2, 3, 6, 3, -2),
    Sketcher.Constraint("Symmetric", 5, 3, 7, 3, -2),
    Sketcher.Constraint("Symmetric", 4, 3, 8, 3, -2),
    Sketcher.Constraint("Symmetric", 3, 3, 9, 3, -2),
    Sketcher.Constraint("Horizontal", 1, 3, 2, 3),
    Sketcher.Constraint("Horizontal", 2, 3, 4, 3),
    Sketcher.Constraint("Vertical", 1, 3, 3, 3),
    Sketcher.Constraint("Vertical", 3, 3, 5, 3),
    Sketcher.Constraint("Diameter", 0, 3.0),
    Sketcher.Constraint("DistanceY", -1, 1, 0, 3, 12.0),
    Sketcher.Constraint("DistanceY", -1, 1, 3, 3, 19.0),
    Sketcher.Constraint("DistanceY", -1, 1, 5, 3, 5.0),
    Sketcher.Constraint("DistanceX", 1, 3, 0, 3, 21.0),
    Sketcher.Constraint("DistanceX", 2, 3, 1, 3, 7.0),
    Sketcher.Constraint("DistanceX", 1, 3, 4, 3, 7.0),
])
pocket2 = body.newObject("PartDesign::Pocket", "Pocket001")
pocket2.Profile = sketch4
pocket2.Length = 12

# Sketch on XY plane
sketch5 = body.newObject("Sketcher::SketchObject", "Sketch004")
sketch5.AttachmentSupport = (doc.getObject("XY_Plane"), [""])
sketch5.MapMode = "FlatFace"
sketch5.AttachmentOffset = App.Placement(App.Vector(0, 0, 18.75), App.Rotation())
sketch5.addGeometry([
    Part.LineSegment(App.Vector(-29, 24, 0), App.Vector(-29, -2, 0)),  # 0
    Part.LineSegment(App.Vector(-29, -2, 0), App.Vector(-20, -2, 0)),  # 1
    Part.LineSegment(App.Vector(-20, -2, 0), App.Vector(-20, 24, 0)),  # 2
    Part.LineSegment(App.Vector(-20, 24, 0), App.Vector(-29, 24, 0)),  # 3
    Part.LineSegment(App.Vector(20, 24, 0), App.Vector(20, -2, 0)),  # 4
    Part.LineSegment(App.Vector(20, -2, 0), App.Vector(29, -2, 0)),  # 5
    Part.LineSegment(App.Vector(29, -2, 0), App.Vector(29, 24, 0)),  # 6
    Part.LineSegment(App.Vector(29, 24, 0), App.Vector(20, 24, 0)),  # 7
], False)
sketch5.addConstraint([
    Sketcher.Constraint("Coincident", 0, 2, 1, 1),
    Sketcher.Constraint("Coincident", 1, 2, 2, 1),
    Sketcher.Constraint("Coincident", 2, 2, 3, 1),
    Sketcher.Constraint("Coincident", 3, 2, 0, 1),
    Sketcher.Constraint("Coincident", 4, 2, 5, 1),
    Sketcher.Constraint("Coincident", 5, 2, 6, 1),
    Sketcher.Constraint("Coincident", 6, 2, 7, 1),
    Sketcher.Constraint("Coincident", 7, 2, 4, 1),
    Sketcher.Constraint("Vertical", 0),
    Sketcher.Constraint("Horizontal", 1),
    Sketcher.Constraint("Vertical", 2),
    Sketcher.Constraint("Horizontal", 3),
    Sketcher.Constraint("Vertical", 4),
    Sketcher.Constraint("Horizontal", 5),
    Sketcher.Constraint("Vertical", 6),
    Sketcher.Constraint("Horizontal", 7),
    Sketcher.Constraint("Symmetric", 1, 2, 4, 2, -2),
    Sketcher.Constraint("Symmetric", 3, 2, 6, 2, -2),
    Sketcher.Constraint("DistanceY", 0, 2, 0, 1, 26.0),
    Sketcher.Constraint("DistanceX", 1, 1, 1, 2, 8.5),
    Sketcher.Constraint("DistanceX", 0, 2, -1, 1, 29.0),
    Sketcher.Constraint("DistanceY", 0, 2, -1, 1, 2.0),
])
pocket3 = body.newObject("PartDesign::Pocket", "Pocket002")
pocket3.Profile = sketch5
pocket3.Length = 8
doc.recompute()

fillet2 = body.newObject("PartDesign::Fillet", "Fillet001")
fillet2.Base = (pocket3, edges_at(pocket3, [
    (20.5, 24, 17.75),
    (-20.5, 24, 17.75),
    (-29, -1, 10.75),
    (29, -1, 10.75),
    (-19, -1, -18.75),
    (19, -1, -18.75),
]))
fillet2.Radius = 3
doc.recompute()

fillet3 = body.newObject("PartDesign::Fillet", "Fillet002")
fillet3.Base = (fillet2, edges_at(fillet2, [(-24.75, -2, -13.75), (0, -2, 18.75), (24.75, -2, -13.75)]))
fillet3.Radius = 2

doc.recompute()
